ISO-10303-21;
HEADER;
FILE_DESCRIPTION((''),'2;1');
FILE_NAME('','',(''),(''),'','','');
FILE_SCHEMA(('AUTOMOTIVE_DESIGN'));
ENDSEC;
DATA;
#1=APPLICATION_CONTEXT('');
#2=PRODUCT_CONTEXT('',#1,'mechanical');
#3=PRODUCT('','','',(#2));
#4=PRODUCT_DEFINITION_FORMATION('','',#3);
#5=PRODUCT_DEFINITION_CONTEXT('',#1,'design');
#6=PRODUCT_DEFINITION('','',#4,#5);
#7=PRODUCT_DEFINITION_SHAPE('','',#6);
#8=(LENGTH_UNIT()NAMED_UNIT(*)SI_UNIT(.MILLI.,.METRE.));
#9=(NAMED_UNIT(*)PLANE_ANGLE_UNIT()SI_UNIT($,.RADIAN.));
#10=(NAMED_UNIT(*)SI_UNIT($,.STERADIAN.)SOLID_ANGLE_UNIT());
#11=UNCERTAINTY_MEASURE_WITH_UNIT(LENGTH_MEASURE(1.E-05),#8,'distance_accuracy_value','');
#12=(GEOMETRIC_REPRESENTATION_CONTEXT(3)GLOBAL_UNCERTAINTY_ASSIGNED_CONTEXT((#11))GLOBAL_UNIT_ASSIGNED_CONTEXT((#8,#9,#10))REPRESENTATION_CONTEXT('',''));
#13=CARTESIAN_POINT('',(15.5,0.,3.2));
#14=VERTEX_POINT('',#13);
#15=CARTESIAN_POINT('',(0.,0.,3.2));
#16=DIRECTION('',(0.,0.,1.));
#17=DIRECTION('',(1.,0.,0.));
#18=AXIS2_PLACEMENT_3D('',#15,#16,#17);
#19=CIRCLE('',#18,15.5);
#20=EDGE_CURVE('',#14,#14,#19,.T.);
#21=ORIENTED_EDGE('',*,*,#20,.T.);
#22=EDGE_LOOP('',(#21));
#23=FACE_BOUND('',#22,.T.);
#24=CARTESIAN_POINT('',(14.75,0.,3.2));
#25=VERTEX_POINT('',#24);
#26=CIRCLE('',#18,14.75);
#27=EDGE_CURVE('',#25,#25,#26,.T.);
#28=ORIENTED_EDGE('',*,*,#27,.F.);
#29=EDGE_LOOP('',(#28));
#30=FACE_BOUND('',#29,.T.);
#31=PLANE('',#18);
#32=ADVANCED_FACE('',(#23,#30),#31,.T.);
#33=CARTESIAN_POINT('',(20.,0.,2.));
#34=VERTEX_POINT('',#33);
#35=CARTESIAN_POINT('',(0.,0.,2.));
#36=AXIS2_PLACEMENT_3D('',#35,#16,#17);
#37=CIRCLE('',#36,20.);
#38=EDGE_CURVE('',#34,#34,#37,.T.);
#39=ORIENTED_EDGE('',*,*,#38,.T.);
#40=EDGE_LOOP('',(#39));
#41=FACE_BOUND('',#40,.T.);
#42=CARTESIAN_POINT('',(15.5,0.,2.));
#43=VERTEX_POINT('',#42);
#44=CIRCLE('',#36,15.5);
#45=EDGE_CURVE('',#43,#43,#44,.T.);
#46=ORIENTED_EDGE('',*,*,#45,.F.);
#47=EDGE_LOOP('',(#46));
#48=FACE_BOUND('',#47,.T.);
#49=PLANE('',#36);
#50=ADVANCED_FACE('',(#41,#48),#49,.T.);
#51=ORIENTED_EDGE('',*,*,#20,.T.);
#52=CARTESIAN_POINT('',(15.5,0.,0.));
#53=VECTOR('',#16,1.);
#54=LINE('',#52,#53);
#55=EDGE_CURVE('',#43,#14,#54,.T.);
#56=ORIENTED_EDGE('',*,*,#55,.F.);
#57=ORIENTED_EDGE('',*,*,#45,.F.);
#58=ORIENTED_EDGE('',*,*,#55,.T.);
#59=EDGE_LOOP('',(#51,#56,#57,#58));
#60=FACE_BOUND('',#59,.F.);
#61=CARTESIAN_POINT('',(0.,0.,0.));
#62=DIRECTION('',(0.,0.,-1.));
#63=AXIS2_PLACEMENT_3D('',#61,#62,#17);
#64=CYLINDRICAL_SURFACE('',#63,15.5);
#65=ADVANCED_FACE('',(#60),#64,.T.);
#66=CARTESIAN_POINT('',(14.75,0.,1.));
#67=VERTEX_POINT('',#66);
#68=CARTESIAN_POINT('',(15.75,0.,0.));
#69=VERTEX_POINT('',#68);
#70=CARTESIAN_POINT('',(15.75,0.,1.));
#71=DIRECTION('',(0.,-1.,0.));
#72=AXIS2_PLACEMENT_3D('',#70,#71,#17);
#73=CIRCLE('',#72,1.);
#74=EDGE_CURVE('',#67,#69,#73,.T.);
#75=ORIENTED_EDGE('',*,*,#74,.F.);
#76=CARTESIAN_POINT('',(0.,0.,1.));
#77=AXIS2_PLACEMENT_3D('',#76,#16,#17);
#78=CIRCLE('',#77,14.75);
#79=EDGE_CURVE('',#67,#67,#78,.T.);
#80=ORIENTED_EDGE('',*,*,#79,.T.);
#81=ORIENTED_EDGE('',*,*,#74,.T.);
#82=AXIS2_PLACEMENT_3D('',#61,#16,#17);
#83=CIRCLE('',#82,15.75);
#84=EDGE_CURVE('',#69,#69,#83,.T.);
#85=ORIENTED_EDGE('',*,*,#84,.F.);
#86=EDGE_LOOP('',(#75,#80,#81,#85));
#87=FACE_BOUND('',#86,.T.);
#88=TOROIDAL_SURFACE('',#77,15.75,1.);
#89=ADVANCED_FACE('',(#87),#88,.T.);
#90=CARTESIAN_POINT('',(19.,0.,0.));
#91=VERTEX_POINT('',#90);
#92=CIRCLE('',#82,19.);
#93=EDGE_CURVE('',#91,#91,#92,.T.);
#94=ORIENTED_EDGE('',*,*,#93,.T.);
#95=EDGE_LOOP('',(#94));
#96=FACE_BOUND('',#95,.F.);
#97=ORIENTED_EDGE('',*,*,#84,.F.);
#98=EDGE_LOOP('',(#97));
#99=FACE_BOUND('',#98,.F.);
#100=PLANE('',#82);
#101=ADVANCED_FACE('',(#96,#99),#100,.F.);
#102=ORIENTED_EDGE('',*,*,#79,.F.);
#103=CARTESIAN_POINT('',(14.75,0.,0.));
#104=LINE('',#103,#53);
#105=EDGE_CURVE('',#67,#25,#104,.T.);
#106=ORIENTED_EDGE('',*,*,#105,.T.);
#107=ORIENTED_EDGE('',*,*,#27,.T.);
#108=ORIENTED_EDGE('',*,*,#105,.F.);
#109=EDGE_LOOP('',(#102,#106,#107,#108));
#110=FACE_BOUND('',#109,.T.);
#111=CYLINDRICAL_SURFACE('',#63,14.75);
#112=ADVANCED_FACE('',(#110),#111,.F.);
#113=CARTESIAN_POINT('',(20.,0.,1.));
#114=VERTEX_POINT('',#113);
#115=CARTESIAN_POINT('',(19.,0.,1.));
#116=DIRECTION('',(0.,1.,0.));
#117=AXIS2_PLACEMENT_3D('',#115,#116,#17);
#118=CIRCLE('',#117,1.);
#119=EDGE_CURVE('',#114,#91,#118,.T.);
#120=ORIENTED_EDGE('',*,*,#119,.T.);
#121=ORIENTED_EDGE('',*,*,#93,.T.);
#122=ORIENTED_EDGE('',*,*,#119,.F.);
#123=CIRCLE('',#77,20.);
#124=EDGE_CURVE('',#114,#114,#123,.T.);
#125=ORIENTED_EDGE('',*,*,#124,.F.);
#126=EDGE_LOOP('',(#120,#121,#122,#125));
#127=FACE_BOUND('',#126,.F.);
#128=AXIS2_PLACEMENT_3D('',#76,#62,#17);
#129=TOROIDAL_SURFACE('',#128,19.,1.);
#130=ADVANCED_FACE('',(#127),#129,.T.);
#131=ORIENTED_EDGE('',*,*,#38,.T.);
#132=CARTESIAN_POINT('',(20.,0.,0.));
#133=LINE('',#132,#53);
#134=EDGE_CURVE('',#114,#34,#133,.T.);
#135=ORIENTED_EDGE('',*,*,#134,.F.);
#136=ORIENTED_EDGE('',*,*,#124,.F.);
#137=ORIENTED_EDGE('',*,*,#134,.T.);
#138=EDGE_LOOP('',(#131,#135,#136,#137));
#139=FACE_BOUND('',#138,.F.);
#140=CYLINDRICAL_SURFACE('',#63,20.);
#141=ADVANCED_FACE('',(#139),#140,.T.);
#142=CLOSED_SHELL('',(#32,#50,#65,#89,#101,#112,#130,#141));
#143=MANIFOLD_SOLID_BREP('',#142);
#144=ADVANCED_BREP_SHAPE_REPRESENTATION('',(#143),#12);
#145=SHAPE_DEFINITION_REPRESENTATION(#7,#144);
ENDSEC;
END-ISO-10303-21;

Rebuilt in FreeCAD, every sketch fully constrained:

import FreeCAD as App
import Part
import Sketcher


def edges_at(feature, points):
    """Names of the edges that pass closest to the given points."""
    edges = feature.Shape.Edges
    near = lambda p: min(range(len(edges)), key=lambda i: edges[i].distToShape(Part.Vertex(*p))[0])
    return sorted({f"Edge{near(p) + 1}" for p in points})

doc = App.newDocument("Part")
body = doc.addObject("PartDesign::Body", "Body")

# Sketch on XY plane
sketch1 = body.newObject("Sketcher::SketchObject", "Sketch")
sketch1.AttachmentSupport = (doc.getObject("XY_Plane"), [""])
sketch1.MapMode = "FlatFace"
sketch1.addGeometry([
    Part.Circle(App.Vector(0, 0, 0), App.Vector(0, 0, 1), 20),
    Part.Circle(App.Vector(0, 0, 0), App.Vector(0, 0, 1), 15.5),
], False)
sketch1.addConstraint([
    Sketcher.Constraint("Coincident", 0, 3, -1, 1),
    Sketcher.Constraint("Coincident", 1, 3, -1, 1),
    Sketcher.Constraint("Diameter", 0, 40.0),
    Sketcher.Constraint("Diameter", 1, 31.0),
])
pad1 = body.newObject("PartDesign::Pad", "Pad")
pad1.Profile = sketch1
pad1.Length = 2

# Sketch on XY plane
sketch2 = body.newObject("Sketcher::SketchObject", "Sketch001")
sketch2.AttachmentSupport = (doc.getObject("XY_Plane"), [""])
sketch2.MapMode = "FlatFace"
sketch2.addGeometry([
    Part.Circle(App.Vector(0, 0, 0), App.Vector(0, 0, 1), 15.5),
    Part.Circle(App.Vector(0, 0, 0), App.Vector(0, 0, 1), 14.75),
], False)
sketch2.addConstraint([
    Sketcher.Constraint("Coincident", 0, 3, -1, 1),
    Sketcher.Constraint("Coincident", 1, 3, -1, 1),
    Sketcher.Constraint("Diameter", 0, 31.0),
    Sketcher.Constraint("Diameter", 1, 29.5),
])
pad2 = body.newObject("PartDesign::Pad", "Pad001")
pad2.Profile = sketch2
pad2.Length = 3.2
doc.recompute()

fillet = body.newObject("PartDesign::Fillet", "Fillet")
fillet.Base = (pad2, edges_at(pad2, [(-20, 0, 0), (-14.75, 0, 0)]))
fillet.Radius = 1

doc.recompute()
